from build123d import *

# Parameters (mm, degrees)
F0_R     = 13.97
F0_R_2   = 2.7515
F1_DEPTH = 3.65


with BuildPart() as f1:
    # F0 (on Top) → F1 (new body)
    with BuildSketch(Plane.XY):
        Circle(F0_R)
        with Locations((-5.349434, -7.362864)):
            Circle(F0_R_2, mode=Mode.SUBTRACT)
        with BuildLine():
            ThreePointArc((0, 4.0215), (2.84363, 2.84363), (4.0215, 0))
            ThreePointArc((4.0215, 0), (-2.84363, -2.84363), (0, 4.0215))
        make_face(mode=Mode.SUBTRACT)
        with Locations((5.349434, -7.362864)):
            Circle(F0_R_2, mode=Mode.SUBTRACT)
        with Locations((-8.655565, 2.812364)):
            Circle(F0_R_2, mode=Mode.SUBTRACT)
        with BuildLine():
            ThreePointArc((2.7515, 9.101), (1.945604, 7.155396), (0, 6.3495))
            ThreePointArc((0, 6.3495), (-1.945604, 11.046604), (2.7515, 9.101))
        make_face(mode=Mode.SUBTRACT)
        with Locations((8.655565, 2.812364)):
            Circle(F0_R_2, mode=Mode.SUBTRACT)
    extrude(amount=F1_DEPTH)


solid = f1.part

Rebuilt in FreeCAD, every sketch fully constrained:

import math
import FreeCAD as App
import Part
import Sketcher
Q = App.Units.Quantity

doc = App.newDocument("Part")
params = doc.addObject("Spreadsheet::Sheet", "Params")
for row, (alias, value) in enumerate([
    ("sketch1_diameter", "1.1 in"),
    ("pad1_length", "3.65 mm"),
], start=1):
    params.set(f"A{row}", alias)
    params.set(f"B{row}", "=" + value)
    params.setAlias(f"B{row}", alias)

body = doc.addObject("PartDesign::Body", "Body")

# Sketch on XY plane
sketch1 = doc.addObject("Sketcher::SketchObject", "Sketch")
body.addObject(sketch1)
sketch1.AttachmentSupport = (doc.XY_Plane, [""])
sketch1.MapMode = "FlatFace"
sketch1.addGeometry(Part.Circle(App.Vector(0, 0, 0), App.Vector(0, 0, 1), 13.97), False)
sketch1.addGeometry(Part.Circle(App.Vector(-5.349434, -7.362864, 0), App.Vector(0, 0, 1), 2.7515), False)
sketch1.addGeometry(Part.ArcOfCircle(Part.Circle(App.Vector(0, 0, 0), App.Vector(0, 0, 1), 4.0215), math.radians(89.999999), math.radians(360.000001)), False)
sketch1.addGeometry(Part.ArcOfCircle(Part.Circle(App.Vector(0, 0, 0), App.Vector(0, 0, 1), 4.0215), math.radians(-0.000004), math.radians(90.000004)), False)
sketch1.addGeometry(Part.Circle(App.Vector(5.349434, -7.362864, 0), App.Vector(0, 0, 1), 2.7515), False)
sketch1.addGeometry(Part.Circle(App.Vector(-8.655565, 2.812364, 0), App.Vector(0, 0, 1), 2.7515), False)
sketch1.addGeometry(Part.Circle(App.Vector(8.655565, 2.812364, 0), App.Vector(0, 0, 1), 2.7515), False)
sketch1.addGeometry(Part.ArcOfCircle(Part.Circle(App.Vector(0, 9.101, 0), App.Vector(0, 0, 1), 2.7515), math.radians(0.000004), math.radians(269.999996)), False)
sketch1.addGeometry(Part.ArcOfCircle(Part.Circle(App.Vector(-0.000001, 9.101001, 0), App.Vector(0, 0, 1), 2.751501), math.radians(-89.999978), math.radians(-0.000022)), False)
sketch1.addConstraint(Sketcher.Constraint("Tangent", 2, 1, 3, 2))
sketch1.addConstraint(Sketcher.Constraint("Coincident", 3, 1, 2, 2))
sketch1.addConstraint(Sketcher.Constraint("Tangent", 7, 1, 8, 2))
sketch1.addConstraint(Sketcher.Constraint("Coincident", 8, 1, 7, 2))
sketch1.addConstraint(Sketcher.Constraint("Coincident", 0, 3, -1, 1))
sketch1.addConstraint(Sketcher.Constraint("Coincident", 2, 3, -1, 1))
sketch1.addConstraint(Sketcher.Constraint("Equal", 1, 4))
sketch1.addConstraint(Sketcher.Constraint("Equal", 4, 5))
sketch1.addConstraint(Sketcher.Constraint("Equal", 5, 6))
sketch1.addConstraint(Sketcher.Constraint("Equal", 6, 7))
sketch1.addConstraint(Sketcher.Constraint("Symmetric", 1, 3, 4, 3, -2))
sketch1.addConstraint(Sketcher.Constraint("Symmetric", 5, 3, 6, 3, -2))
sketch1.addConstraint(Sketcher.Constraint("PointOnObject", 7, 3, -2))
sketch1.addConstraint(Sketcher.Constraint("PointOnObject", 2, 1, -2))
sketch1.addConstraint(Sketcher.Constraint("PointOnObject", 3, 1, -1))
sketch1.addConstraint(Sketcher.Constraint("PointOnObject", 8, 1, -2))
sketch1.addConstraint(Sketcher.Constraint("Horizontal", 8, 3, 7, 1))
sketch1.addConstraint(Sketcher.Constraint("Diameter", 0, Q("1.1 in")))
sketch1.addConstraint(Sketcher.Constraint("Diameter", 1, 5.503))
sketch1.addConstraint(Sketcher.Constraint("Radius", 2, 4.0215))
sketch1.addConstraint(Sketcher.Constraint("DistanceY", -1, 1, 7, 3, 9.101))
sketch1.addConstraint(Sketcher.Constraint("DistanceX", 5, 3, 4, 3, 14.004999))
sketch1.addConstraint(Sketcher.Constraint("DistanceX", 5, 3, 1, 3, 3.306131))
sketch1.addConstraint(Sketcher.Constraint("DistanceY", 1, 3, -1, 1, 7.362864))
sketch1.addConstraint(Sketcher.Constraint("DistanceY", -1, 1, 5, 3, 2.812364))
sketch1.setExpression("Constraints[17]", "Params.sketch1_diameter")
pad1 = doc.addObject("PartDesign::Pad", "Pad")
body.addObject(pad1)
pad1.Profile = sketch1
pad1.setExpression("Length", "Params.pad1_length")

doc.recompute()
